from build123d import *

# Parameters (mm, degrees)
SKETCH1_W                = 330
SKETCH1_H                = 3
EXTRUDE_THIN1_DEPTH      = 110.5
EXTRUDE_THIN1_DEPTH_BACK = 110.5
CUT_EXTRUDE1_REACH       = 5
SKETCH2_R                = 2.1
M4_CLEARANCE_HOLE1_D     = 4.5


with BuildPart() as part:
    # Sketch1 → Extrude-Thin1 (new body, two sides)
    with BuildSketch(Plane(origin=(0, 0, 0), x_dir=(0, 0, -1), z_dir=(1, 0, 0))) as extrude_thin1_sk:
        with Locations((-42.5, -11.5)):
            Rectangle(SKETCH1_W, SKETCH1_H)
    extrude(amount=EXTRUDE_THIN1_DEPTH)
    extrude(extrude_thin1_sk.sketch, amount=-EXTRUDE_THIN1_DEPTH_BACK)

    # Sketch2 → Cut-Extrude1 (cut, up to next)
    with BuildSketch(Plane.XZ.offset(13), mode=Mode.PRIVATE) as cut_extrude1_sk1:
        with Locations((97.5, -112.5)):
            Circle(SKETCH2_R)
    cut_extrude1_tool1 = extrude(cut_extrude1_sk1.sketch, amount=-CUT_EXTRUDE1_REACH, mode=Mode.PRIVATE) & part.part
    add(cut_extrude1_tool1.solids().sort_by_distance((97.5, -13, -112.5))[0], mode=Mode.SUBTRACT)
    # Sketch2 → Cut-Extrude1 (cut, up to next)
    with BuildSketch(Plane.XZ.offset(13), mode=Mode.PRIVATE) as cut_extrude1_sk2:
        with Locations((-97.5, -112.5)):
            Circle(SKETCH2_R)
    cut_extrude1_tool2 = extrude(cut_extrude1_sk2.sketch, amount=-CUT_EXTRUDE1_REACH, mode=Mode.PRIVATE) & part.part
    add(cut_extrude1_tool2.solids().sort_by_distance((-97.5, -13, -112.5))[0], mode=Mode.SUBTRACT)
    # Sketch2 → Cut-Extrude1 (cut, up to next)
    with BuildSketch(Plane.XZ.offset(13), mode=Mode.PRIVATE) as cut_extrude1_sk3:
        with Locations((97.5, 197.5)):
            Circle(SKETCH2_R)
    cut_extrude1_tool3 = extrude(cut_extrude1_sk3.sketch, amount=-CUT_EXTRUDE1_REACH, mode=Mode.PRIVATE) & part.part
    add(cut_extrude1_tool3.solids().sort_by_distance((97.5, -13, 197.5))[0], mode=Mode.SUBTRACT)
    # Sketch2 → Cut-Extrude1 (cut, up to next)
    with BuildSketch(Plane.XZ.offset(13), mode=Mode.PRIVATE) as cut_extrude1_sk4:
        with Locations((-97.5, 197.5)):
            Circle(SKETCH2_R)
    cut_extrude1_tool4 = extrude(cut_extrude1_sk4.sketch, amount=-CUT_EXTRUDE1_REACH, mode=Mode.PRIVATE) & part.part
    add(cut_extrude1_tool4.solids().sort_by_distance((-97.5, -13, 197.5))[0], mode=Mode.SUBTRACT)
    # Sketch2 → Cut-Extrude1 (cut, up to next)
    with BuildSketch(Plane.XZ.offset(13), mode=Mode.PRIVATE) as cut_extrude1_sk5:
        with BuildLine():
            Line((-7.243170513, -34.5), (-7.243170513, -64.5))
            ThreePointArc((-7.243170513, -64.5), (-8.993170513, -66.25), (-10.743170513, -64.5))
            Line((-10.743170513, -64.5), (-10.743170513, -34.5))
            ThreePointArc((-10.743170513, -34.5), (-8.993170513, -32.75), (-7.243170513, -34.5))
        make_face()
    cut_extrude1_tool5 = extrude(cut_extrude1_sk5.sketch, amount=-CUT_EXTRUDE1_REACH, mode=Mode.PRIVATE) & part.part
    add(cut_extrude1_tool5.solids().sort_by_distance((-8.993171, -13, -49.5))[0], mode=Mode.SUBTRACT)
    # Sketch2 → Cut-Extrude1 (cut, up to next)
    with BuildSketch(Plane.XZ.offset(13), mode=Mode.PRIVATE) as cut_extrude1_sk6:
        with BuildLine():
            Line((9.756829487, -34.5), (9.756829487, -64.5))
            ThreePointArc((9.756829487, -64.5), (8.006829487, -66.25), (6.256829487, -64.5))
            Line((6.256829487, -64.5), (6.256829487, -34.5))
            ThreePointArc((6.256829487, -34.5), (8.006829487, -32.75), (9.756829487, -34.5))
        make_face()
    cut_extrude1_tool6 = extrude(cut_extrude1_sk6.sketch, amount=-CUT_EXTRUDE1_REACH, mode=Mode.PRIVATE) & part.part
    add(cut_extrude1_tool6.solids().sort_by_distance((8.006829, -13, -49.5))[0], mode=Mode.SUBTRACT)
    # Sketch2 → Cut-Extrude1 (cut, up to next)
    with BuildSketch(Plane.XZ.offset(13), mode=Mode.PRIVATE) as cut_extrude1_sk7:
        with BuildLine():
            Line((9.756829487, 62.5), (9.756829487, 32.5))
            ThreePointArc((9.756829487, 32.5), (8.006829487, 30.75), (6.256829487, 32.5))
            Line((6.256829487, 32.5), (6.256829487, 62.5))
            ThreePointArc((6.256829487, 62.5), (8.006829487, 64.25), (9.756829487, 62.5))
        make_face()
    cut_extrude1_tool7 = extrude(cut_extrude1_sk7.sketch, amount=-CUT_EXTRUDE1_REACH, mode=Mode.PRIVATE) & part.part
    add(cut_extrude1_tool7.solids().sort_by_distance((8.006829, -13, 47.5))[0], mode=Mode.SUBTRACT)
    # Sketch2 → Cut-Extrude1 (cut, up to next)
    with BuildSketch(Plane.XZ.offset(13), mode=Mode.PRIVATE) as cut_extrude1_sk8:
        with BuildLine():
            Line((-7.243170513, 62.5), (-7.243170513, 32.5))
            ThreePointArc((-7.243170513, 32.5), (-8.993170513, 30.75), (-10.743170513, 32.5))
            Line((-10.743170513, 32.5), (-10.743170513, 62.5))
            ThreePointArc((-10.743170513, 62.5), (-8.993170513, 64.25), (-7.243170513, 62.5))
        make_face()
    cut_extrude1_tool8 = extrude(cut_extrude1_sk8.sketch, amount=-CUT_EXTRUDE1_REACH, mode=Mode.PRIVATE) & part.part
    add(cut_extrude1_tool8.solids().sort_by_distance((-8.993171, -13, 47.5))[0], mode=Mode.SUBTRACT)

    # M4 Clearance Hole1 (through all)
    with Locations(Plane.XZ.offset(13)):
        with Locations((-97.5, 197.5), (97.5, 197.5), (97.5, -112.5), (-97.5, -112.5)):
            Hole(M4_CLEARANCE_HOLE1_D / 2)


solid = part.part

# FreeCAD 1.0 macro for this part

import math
import FreeCAD as App
import Part
import Sketcher

doc = App.newDocument("Part")
params = doc.addObject("Spreadsheet::Sheet", "Params")
for row, (alias, value) in enumerate([
    ("sketch1_width", "3 mm"),
    ("sketch1_height", "330 mm"),
    ("pad1_length", "110.5 mm"),
    ("pad1_length2", "110.5 mm"),
    ("sketch2_diameter", "4.2 mm"),
    ("sketch3_diameter", "4.2 mm"),
    ("sketch4_diameter", "4.2 mm"),
    ("sketch5_diameter", "4.2 mm"),
    ("sketch6_height", "30 mm"),
    ("sketch6_radius", "1.75 mm"),
    ("sketch7_height", "30 mm"),
    ("sketch7_radius", "1.75 mm"),
    ("sketch8_height", "30 mm"),
    ("sketch8_radius", "1.75 mm"),
    ("sketch9_height", "30 mm"),
    ("sketch9_radius", "1.75 mm"),
    ("sketch10_diameter", "4.5 mm"),
    ("hole_diameter", "4.5 mm"),
], start=1):
    params.set(f"A{row}", alias)
    params.set(f"B{row}", "=" + value)
    params.setAlias(f"B{row}", alias)

body = doc.addObject("PartDesign::Body", "Body")

# Sketch on YZ plane
sketch1 = body.newObject("Sketcher::SketchObject", "Sketch")
sketch1.AttachmentSupport = (doc.getObject("YZ_Plane"), [""])
sketch1.MapMode = "FlatFace"
sketch1.addGeometry([
    Part.LineSegment(App.Vector(-10, 207.5, 0), App.Vector(-13, 207.5, 0)),
    Part.LineSegment(App.Vector(-13, 207.5, 0), App.Vector(-13, -122.5, 0)),
    Part.LineSegment(App.Vector(-13, -122.5, 0), App.Vector(-10, -122.5, 0)),
    Part.LineSegment(App.Vector(-10, -122.5, 0), App.Vector(-10, 207.5, 0)),
], False)
sketch1.addConstraint([
    Sketcher.Constraint("Coincident", 0, 2, 1, 1),
    Sketcher.Constraint("Coincident", 1, 2, 2, 1),
    Sketcher.Constraint("Coincident", 2, 2, 3, 1),
    Sketcher.Constraint("Coincident", 3, 2, 0, 1),
    Sketcher.Constraint("Horizontal", 0),
    Sketcher.Constraint("Vertical", 1),
    Sketcher.Constraint("Horizontal", 2),
    Sketcher.Constraint("Vertical", 3),
    Sketcher.Constraint("DistanceX", 0, 2, 0, 1, 3.0),
    Sketcher.Constraint("DistanceY", 1, 2, 1, 1, 330.0),
    Sketcher.Constraint("DistanceX", 0, 2, -1, 1, 13.0),
    Sketcher.Constraint("DistanceY", -1, 1, 0, 2, 207.5),
])
sketch1.setExpression("Constraints[8]", "Params.sketch1_width")
sketch1.setExpression("Constraints[9]", "Params.sketch1_height")
pad1 = body.newObject("PartDesign::Pad", "Pad")
pad1.Profile = sketch1
pad1.Type = "TwoLengths"
pad1.setExpression("Length", "Params.pad1_length")
pad1.setExpression("Length2", "Params.pad1_length2")

# Sketch on XZ plane
sketch2 = body.newObject("Sketcher::SketchObject", "Sketch001")
sketch2.AttachmentSupport = (doc.getObject("XZ_Plane"), [""])
sketch2.MapMode = "FlatFace"
sketch2.AttachmentOffset = App.Placement(App.Vector(0, 0, 13), App.Rotation())
sketch2.addGeometry(Part.Circle(App.Vector(97.5, -112.5, 0), App.Vector(0, 0, 1), 2.1), False)
sketch2.addConstraint([
    Sketcher.Constraint("Diameter", 0, 4.2),
    Sketcher.Constraint("DistanceX", -1, 1, 0, 3, 97.5),
    Sketcher.Constraint("DistanceY", 0, 3, -1, 1, 112.5),
])
sketch2.setExpression("Constraints[0]", "Params.sketch2_diameter")
pocket1 = body.newObject("PartDesign::Pocket", "Pocket")
pocket1.Profile = sketch2
pocket1.Type = "UpToFirst"

# Sketch on XZ plane
sketch3 = body.newObject("Sketcher::SketchObject", "Sketch002")
sketch3.AttachmentSupport = (doc.getObject("XZ_Plane"), [""])
sketch3.MapMode = "FlatFace"
sketch3.AttachmentOffset = App.Placement(App.Vector(0, 0, 13), App.Rotation())
sketch3.addGeometry(Part.Circle(App.Vector(-97.5, -112.5, 0), App.Vector(0, 0, 1), 2.1), False)
sketch3.addConstraint([
    Sketcher.Constraint("Diameter", 0, 4.2),
    Sketcher.Constraint("DistanceX", 0, 3, -1, 1, 97.5),
    Sketcher.Constraint("DistanceY", 0, 3, -1, 1, 112.5),
])
sketch3.setExpression("Constraints[0]", "Params.sketch3_diameter")
pocket2 = body.newObject("PartDesign::Pocket", "Pocket001")
pocket2.Profile = sketch3
pocket2.Type = "UpToFirst"

# Sketch on XZ plane
sketch4 = body.newObject("Sketcher::SketchObject", "Sketch003")
sketch4.AttachmentSupport = (doc.getObject("XZ_Plane"), [""])
sketch4.MapMode = "FlatFace"
sketch4.AttachmentOffset = App.Placement(App.Vector(0, 0, 13), App.Rotation())
sketch4.addGeometry(Part.Circle(App.Vector(97.5, 197.5, 0), App.Vector(0, 0, 1), 2.1), False)
sketch4.addConstraint([
    Sketcher.Constraint("Diameter", 0, 4.2),
    Sketcher.Constraint("DistanceX", -1, 1, 0, 3, 97.5),
    Sketcher.Constraint("DistanceY", -1, 1, 0, 3, 197.5),
])
sketch4.setExpression("Constraints[0]", "Params.sketch4_diameter")
pocket3 = body.newObject("PartDesign::Pocket", "Pocket002")
pocket3.Profile = sketch4
pocket3.Type = "UpToFirst"

# Sketch on XZ plane
sketch5 = body.newObject("Sketcher::SketchObject", "Sketch004")
sketch5.AttachmentSupport = (doc.getObject("XZ_Plane"), [""])
sketch5.MapMode = "FlatFace"
sketch5.AttachmentOffset = App.Placement(App.Vector(0, 0, 13), App.Rotation())
sketch5.addGeometry(Part.Circle(App.Vector(-97.5, 197.5, 0), App.Vector(0, 0, 1), 2.1), False)
sketch5.addConstraint([
    Sketcher.Constraint("Diameter", 0, 4.2),
    Sketcher.Constraint("DistanceX", 0, 3, -1, 1, 97.5),
    Sketcher.Constraint("DistanceY", -1, 1, 0, 3, 197.5),
])
sketch5.setExpression("Constraints[0]", "Params.sketch5_diameter")
pocket4 = body.newObject("PartDesign::Pocket", "Pocket003")
pocket4.Profile = sketch5
pocket4.Type = "UpToFirst"

# Sketch on XZ plane
sketch6 = body.newObject("Sketcher::SketchObject", "Sketch005")
sketch6.AttachmentSupport = (doc.getObject("XZ_Plane"), [""])
sketch6.MapMode = "FlatFace"
sketch6.AttachmentOffset = App.Placement(App.Vector(0, 0, 13), App.Rotation())
sketch6.addGeometry([
    Part.LineSegment(App.Vector(-7.243171, -64.5, 0), App.Vector(-7.243171, -34.5, 0)),
    Part.ArcOfCircle(Part.Circle(App.Vector(-8.993171, -34.5, 0), App.Vector(0, 0, 1), 1.75), math.radians(0), math.radians(180)),
    Part.LineSegment(App.Vector(-10.743171, -34.5, 0), App.Vector(-10.743171, -64.5, 0)),
    Part.ArcOfCircle(Part.Circle(App.Vector(-8.993171, -64.5, 0), App.Vector(0, 0, 1), 1.75), math.radians(180), math.radians(360)),
], False)
sketch6.addConstraint([
    Sketcher.Constraint("Tangent", 0, 2, 1, 1),
    Sketcher.Constraint("Tangent", 1, 2, 2, 1),
    Sketcher.Constraint("Tangent", 2, 2, 3, 1),
    Sketcher.Constraint("Tangent", 3, 2, 0, 1),
    Sketcher.Constraint("Vertical", 0),
    Sketcher.Constraint("Vertical", 2),
    Sketcher.Constraint("DistanceY", 0, 1, 0, 2, 30.0),
    Sketcher.Constraint("Radius", 1, 1.75),
    Sketcher.Constraint("DistanceY", 1, 3, -1, 1, 34.5),
    Sketcher.Constraint("DistanceX", 1, 3, -1, 1, 8.993171),
])
sketch6.setExpression("Constraints[6]", "Params.sketch6_height")
sketch6.setExpression("Constraints[7]", "Params.sketch6_radius")
pocket5 = body.newObject("PartDesign::Pocket", "Pocket004")
pocket5.Profile = sketch6
pocket5.Type = "UpToFirst"

# Sketch on XZ plane
sketch7 = body.newObject("Sketcher::SketchObject", "Sketch006")
sketch7.AttachmentSupport = (doc.getObject("XZ_Plane"), [""])
sketch7.MapMode = "FlatFace"
sketch7.AttachmentOffset = App.Placement(App.Vector(0, 0, 13), App.Rotation())
sketch7.addGeometry([
    Part.LineSegment(App.Vector(9.756829, -64.5, 0), App.Vector(9.756829, -34.5, 0)),
    Part.ArcOfCircle(Part.Circle(App.Vector(8.006829, -34.5, 0), App.Vector(0, 0, 1), 1.75), math.radians(0), math.radians(180)),
    Part.LineSegment(App.Vector(6.256829, -34.5, 0), App.Vector(6.256829, -64.5, 0)),
    Part.ArcOfCircle(Part.Circle(App.Vector(8.006829, -64.5, 0), App.Vector(0, 0, 1), 1.75), math.radians(180), math.radians(360)),
], False)
sketch7.addConstraint([
    Sketcher.Constraint("Tangent", 0, 2, 1, 1),
    Sketcher.Constraint("Tangent", 1, 2, 2, 1),
    Sketcher.Constraint("Tangent", 2, 2, 3, 1),
    Sketcher.Constraint("Tangent", 3, 2, 0, 1),
    Sketcher.Constraint("Vertical", 0),
    Sketcher.Constraint("Vertical", 2),
    Sketcher.Constraint("DistanceY", 0, 1, 0, 2, 30.0),
    Sketcher.Constraint("Radius", 1, 1.75),
    Sketcher.Constraint("DistanceY", 1, 3, -1, 1, 34.5),
    Sketcher.Constraint("DistanceX", -1, 1, 1, 3, 8.006829),
])
sketch7.setExpression("Constraints[6]", "Params.sketch7_height")
sketch7.setExpression("Constraints[7]", "Params.sketch7_radius")
pocket6 = body.newObject("PartDesign::Pocket", "Pocket005")
pocket6.Profile = sketch7
pocket6.Type = "UpToFirst"

# Sketch on XZ plane
sketch8 = body.newObject("Sketcher::SketchObject", "Sketch007")
sketch8.AttachmentSupport = (doc.getObject("XZ_Plane"), [""])
sketch8.MapMode = "FlatFace"
sketch8.AttachmentOffset = App.Placement(App.Vector(0, 0, 13), App.Rotation())
sketch8.addGeometry([
    Part.LineSegment(App.Vector(9.756829, 32.5, 0), App.Vector(9.756829, 62.5, 0)),
    Part.ArcOfCircle(Part.Circle(App.Vector(8.006829, 62.5, 0), App.Vector(0, 0, 1), 1.75), math.radians(0), math.radians(180)),
    Part.LineSegment(App.Vector(6.256829, 62.5, 0), App.Vector(6.256829, 32.5, 0)),
    Part.ArcOfCircle(Part.Circle(App.Vector(8.006829, 32.5, 0), App.Vector(0, 0, 1), 1.75), math.radians(180), math.radians(360)),
], False)
sketch8.addConstraint([
    Sketcher.Constraint("Tangent", 0, 2, 1, 1),
    Sketcher.Constraint("Tangent", 1, 2, 2, 1),
    Sketcher.Constraint("Tangent", 2, 2, 3, 1),
    Sketcher.Constraint("Tangent", 3, 2, 0, 1),
    Sketcher.Constraint("Vertical", 0),
    Sketcher.Constraint("Vertical", 2),
    Sketcher.Constraint("DistanceY", 0, 1, 0, 2, 30.0),
    Sketcher.Constraint("Radius", 1, 1.75),
    Sketcher.Constraint("DistanceY", -1, 1, 1, 3, 62.5),
    Sketcher.Constraint("DistanceX", -1, 1, 1, 3, 8.006829),
])
sketch8.setExpression("Constraints[6]", "Params.sketch8_height")
sketch8.setExpression("Constraints[7]", "Params.sketch8_radius")
pocket7 = body.newObject("PartDesign::Pocket", "Pocket006")
pocket7.Profile = sketch8
pocket7.Type = "UpToFirst"

# Sketch on XZ plane
sketch9 = body.newObject("Sketcher::SketchObject", "Sketch008")
sketch9.AttachmentSupport = (doc.getObject("XZ_Plane"), [""])
sketch9.MapMode = "FlatFace"
sketch9.AttachmentOffset = App.Placement(App.Vector(0, 0, 13), App.Rotation())
sketch9.addGeometry([
    Part.LineSegment(App.Vector(-7.243171, 32.5, 0), App.Vector(-7.243171, 62.5, 0)),
    Part.ArcOfCircle(Part.Circle(App.Vector(-8.993171, 62.5, 0), App.Vector(0, 0, 1), 1.75), math.radians(0), math.radians(180)),
    Part.LineSegment(App.Vector(-10.743171, 62.5, 0), App.Vector(-10.743171, 32.5, 0)),
    Part.ArcOfCircle(Part.Circle(App.Vector(-8.993171, 32.5, 0), App.Vector(0, 0, 1), 1.75), math.radians(180), math.radians(360)),
], False)
sketch9.addConstraint([
    Sketcher.Constraint("Tangent", 0, 2, 1, 1),
    Sketcher.Constraint("Tangent", 1, 2, 2, 1),
    Sketcher.Constraint("Tangent", 2, 2, 3, 1),
    Sketcher.Constraint("Tangent", 3, 2, 0, 1),
    Sketcher.Constraint("Vertical", 0),
    Sketcher.Constraint("Vertical", 2),
    Sketcher.Constraint("DistanceY", 0, 1, 0, 2, 30.0),
    Sketcher.Constraint("Radius", 1, 1.75),
    Sketcher.Constraint("DistanceY", -1, 1, 1, 3, 62.5),
    Sketcher.Constraint("DistanceX", 1, 3, -1, 1, 8.993171),
])
sketch9.setExpression("Constraints[6]", "Params.sketch9_height")
sketch9.setExpression("Constraints[7]", "Params.sketch9_radius")
pocket8 = body.newObject("PartDesign::Pocket", "Pocket007")
pocket8.Profile = sketch9
pocket8.Type = "UpToFirst"

# Sketch on XZ plane
sketch10 = body.newObject("Sketcher::SketchObject", "Sketch009")
sketch10.AttachmentSupport = (doc.getObject("XZ_Plane"), [""])
sketch10.MapMode = "FlatFace"
sketch10.AttachmentOffset = App.Placement(App.Vector(0, 0, 13), App.Rotation())
sketch10.addGeometry([
    Part.Circle(App.Vector(-97.5, 197.5, 0), App.Vector(0, 0, 1), 2.25),
    Part.Circle(App.Vector(97.5, 197.5, 0), App.Vector(0, 0, 1), 2.25),
    Part.Circle(App.Vector(97.5, -112.5, 0), App.Vector(0, 0, 1), 2.25),
    Part.Circle(App.Vector(-97.5, -112.5, 0), App.Vector(0, 0, 1), 2.25),
], False)
sketch10.addConstraint([
    Sketcher.Constraint("Equal", 0, 1),
    Sketcher.Constraint("Equal", 1, 2),
    Sketcher.Constraint("Equal", 2, 3),
    Sketcher.Constraint("Symmetric", 0, 3, 1, 3, -2),
    Sketcher.Constraint("Symmetric", 2, 3, 3, 3, -2),
    Sketcher.Constraint("Vertical", 1, 3, 2, 3),
    Sketcher.Constraint("Diameter", 0, 4.5),
    Sketcher.Constraint("DistanceX", 0, 3, 1, 3, 195.0),
    Sketcher.Constraint("DistanceY", 2, 3, 1, 3, 310.0),
    Sketcher.Constraint("DistanceY", -1, 1, 0, 3, 197.5),
])
sketch10.setExpression("Constraints[6]", "Params.sketch10_diameter")
doc.recompute()
hole = body.newObject("PartDesign::Hole", "Hole")
hole.Profile = sketch10
hole.ThreadType = "None"
hole.setExpression("Diameter", "Params.hole_diameter")
hole.DepthType = "ThroughAll"

doc.recompute()
